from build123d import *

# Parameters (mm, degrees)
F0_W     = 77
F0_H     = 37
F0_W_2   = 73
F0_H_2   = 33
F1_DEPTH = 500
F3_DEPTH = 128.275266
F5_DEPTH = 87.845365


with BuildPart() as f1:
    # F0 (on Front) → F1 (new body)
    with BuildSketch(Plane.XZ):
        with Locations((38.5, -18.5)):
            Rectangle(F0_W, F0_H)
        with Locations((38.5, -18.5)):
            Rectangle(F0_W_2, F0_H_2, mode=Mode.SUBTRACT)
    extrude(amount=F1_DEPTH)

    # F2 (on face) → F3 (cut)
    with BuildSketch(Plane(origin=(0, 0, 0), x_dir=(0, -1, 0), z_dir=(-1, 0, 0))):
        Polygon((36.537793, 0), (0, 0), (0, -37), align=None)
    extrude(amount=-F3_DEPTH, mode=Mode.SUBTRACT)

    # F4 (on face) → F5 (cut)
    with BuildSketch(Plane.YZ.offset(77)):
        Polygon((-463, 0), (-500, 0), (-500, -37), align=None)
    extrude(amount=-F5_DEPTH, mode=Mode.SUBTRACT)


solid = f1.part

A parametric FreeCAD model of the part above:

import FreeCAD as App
import Part
import Sketcher

V = App.Vector

doc = App.newDocument("Part")
body = doc.addObject("PartDesign::Body", "Body")

# Sketch on XZ plane
sketch1 = body.newObject("Sketcher::SketchObject", "Sketch")
sketch1.AttachmentSupport = (doc.getObject("XZ_Plane"), [""])
sketch1.MapMode = "FlatFace"
sketch1.addGeometry([
    Part.LineSegment(V(0, 0, 0), V(0, -37, 0)),  # 0
    Part.LineSegment(V(0, -37, 0), V(77, -37, 0)),  # 1
    Part.LineSegment(V(77, -37, 0), V(77, 0, 0)),  # 2
    Part.LineSegment(V(77, 0, 0), V(0, 0, 0)),  # 3
    Part.LineSegment(V(75, -35, 0), V(2, -35, 0)),  # 4
    Part.LineSegment(V(2, -35, 0), V(2, -2, 0)),  # 5
    Part.LineSegment(V(2, -2, 0), V(75, -2, 0)),  # 6
    Part.LineSegment(V(75, -2, 0), V(75, -35, 0)),  # 7
], False)
sketch1.addConstraint([
    Sketcher.Constraint("Coincident", 0, 2, 1, 1),
    Sketcher.Constraint("Coincident", 1, 2, 2, 1),
    Sketcher.Constraint("Coincident", 2, 2, 3, 1),
    Sketcher.Constraint("Coincident", 3, 2, 0, 1),
    Sketcher.Constraint("Coincident", 4, 2, 5, 1),
    Sketcher.Constraint("Coincident", 5, 2, 6, 1),
    Sketcher.Constraint("Coincident", 6, 2, 7, 1),
    Sketcher.Constraint("Coincident", 7, 2, 4, 1),
    Sketcher.Constraint("Vertical", 0),
    Sketcher.Constraint("Horizontal", 1),
    Sketcher.Constraint("Vertical", 2),
    Sketcher.Constraint("Horizontal", 3),
    Sketcher.Constraint("Horizontal", 4),
    Sketcher.Constraint("Vertical", 5),
    Sketcher.Constraint("Horizontal", 6),
    Sketcher.Constraint("Vertical", 7),
    Sketcher.Constraint("Coincident", 3, 2, -1, 1),
    Sketcher.Constraint("DistanceX", 1, 1, 1, 2, 77.0),
    Sketcher.Constraint("DistanceX", 4, 2, 4, 1, 73.0),
    Sketcher.Constraint("DistanceY", 0, 2, 0, 1, 37.0),
    Sketcher.Constraint("DistanceY", 5, 1, 5, 2, 33.0),
    Sketcher.Constraint("DistanceX", -1, 1, 4, 2, 2.0),
    Sketcher.Constraint("DistanceY", 4, 2, -1, 1, 35.0),
])
pad1 = body.newObject("PartDesign::Pad", "Pad")
pad1.Profile = sketch1
pad1.Length = 500

# Sketch on YZ plane
sketch2 = body.newObject("Sketcher::SketchObject", "Sketch001")
sketch2.AttachmentSupport = (doc.getObject("YZ_Plane"), [""])
sketch2.MapMode = "FlatFace"
sketch2.addGeometry([
    Part.LineSegment(V(-36.537793, 0, 0), V(0, 0, 0)),
    Part.LineSegment(V(0, 0, 0), V(0, -37, 0)),
    Part.LineSegment(V(0, -37, 0), V(-36.537793, 0, 0)),
], False)
sketch2.addConstraint([
    Sketcher.Constraint("Coincident", 0, 2, 1, 1),
    Sketcher.Constraint("Coincident", 1, 2, 2, 1),
    Sketcher.Constraint("Coincident", 2, 2, 0, 1),
    Sketcher.Constraint("Horizontal", 0),
    Sketcher.Constraint("Vertical", 1),
    Sketcher.Constraint("Coincident", 0, 2, -1, 1),
    Sketcher.Constraint("DistanceY", 1, 2, 1, 1, 37.0),
    Sketcher.Constraint("Distance", 2, 52.000099),
])
pocket1 = body.newObject("PartDesign::Pocket", "Pocket")
pocket1.Profile = sketch2
pocket1.Length = 128.275266
pocket1.Reversed = True

# Sketch on YZ plane
sketch3 = body.newObject("Sketcher::SketchObject", "Sketch002")
sketch3.AttachmentSupport = (doc.getObject("YZ_Plane"), [""])
sketch3.MapMode = "FlatFace"
sketch3.AttachmentOffset = App.Placement(V(0, 0, 77), App.Rotation())
sketch3.addGeometry([
    Part.LineSegment(V(-463, 0, 0), V(-500, 0, 0)),
    Part.LineSegment(V(-500, 0, 0), V(-500, -37, 0)),
    Part.LineSegment(V(-500, -37, 0), V(-463, 0, 0)),
], False)
sketch3.addConstraint([
    Sketcher.Constraint("Coincident", 0, 2, 1, 1),
    Sketcher.Constraint("Coincident", 1, 2, 2, 1),
    Sketcher.Constraint("Coincident", 2, 2, 0, 1),
    Sketcher.Constraint("Horizontal", 0),
    Sketcher.Constraint("Vertical", 1),
    Sketcher.Constraint("PointOnObject", 0, 2, -1),
    Sketcher.Constraint("Equal", 0, 1),
    Sketcher.Constraint("DistanceX", 0, 2, 0, 1, 37.0),
    Sketcher.Constraint("DistanceX", 0, 2, -1, 1, 500.0),
])
pocket2 = body.newObject("PartDesign::Pocket", "Pocket001")
pocket2.Profile = sketch3
pocket2.Length = 87.845365

doc.recompute()
